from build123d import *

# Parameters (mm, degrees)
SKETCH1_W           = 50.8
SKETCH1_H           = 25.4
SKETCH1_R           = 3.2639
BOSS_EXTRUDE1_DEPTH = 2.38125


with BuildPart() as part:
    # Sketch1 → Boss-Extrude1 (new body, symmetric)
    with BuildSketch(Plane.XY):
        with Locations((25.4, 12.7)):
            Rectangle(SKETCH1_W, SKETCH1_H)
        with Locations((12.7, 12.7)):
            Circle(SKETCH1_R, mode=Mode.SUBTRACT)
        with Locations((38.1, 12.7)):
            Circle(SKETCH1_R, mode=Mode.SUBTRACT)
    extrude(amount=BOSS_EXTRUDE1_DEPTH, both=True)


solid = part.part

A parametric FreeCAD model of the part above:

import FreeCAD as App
import Part
import Sketcher
Q = App.Units.Quantity

doc = App.newDocument("Part")
body = doc.addObject("PartDesign::Body", "Body")

# Sketch on XY plane
sketch1 = body.newObject("Sketcher::SketchObject", "Sketch")
sketch1.AttachmentSupport = (doc.getObject("XY_Plane"), [""])
sketch1.MapMode = "FlatFace"
sketch1.addGeometry([
    Part.LineSegment(App.Vector(0, 25.4, 0), App.Vector(0, 0, 0)),  # 0
    Part.LineSegment(App.Vector(0, 0, 0), App.Vector(50.8, 0, 0)),  # 1
    Part.LineSegment(App.Vector(50.8, 0, 0), App.Vector(50.8, 25.4, 0)),  # 2
    Part.LineSegment(App.Vector(50.8, 25.4, 0), App.Vector(0, 25.4, 0)),  # 3
    Part.Circle(App.Vector(12.7, 12.7, 0), App.Vector(0, 0, 1), 3.3),  # 4
    Part.Circle(App.Vector(38.1, 12.7, 0), App.Vector(0, 0, 1), 3.3),  # 5
], False)
sketch1.addConstraint([
    Sketcher.Constraint("Coincident", 0, 2, 1, 1),
    Sketcher.Constraint("Coincident", 1, 2, 2, 1),
    Sketcher.Constraint("Coincident", 2, 2, 3, 1),
    Sketcher.Constraint("Coincident", 3, 2, 0, 1),
    Sketcher.Constraint("Vertical", 0),
    Sketcher.Constraint("Horizontal", 1),
    Sketcher.Constraint("Vertical", 2),
    Sketcher.Constraint("Horizontal", 3),
    Sketcher.Constraint("Coincident", 0, 2, -1, 1),
    Sketcher.Constraint("Equal", 4, 5),
    Sketcher.Constraint("Horizontal", 4, 3, 5, 3),
    Sketcher.Constraint("DistanceX", 1, 1, 1, 2, Q("2 in")),
    Sketcher.Constraint("DistanceY", 0, 2, 0, 1, Q("1 in")),
    Sketcher.Constraint("Diameter", 4, Q("0.257 in")),
    Sketcher.Constraint("DistanceX", 4, 3, 5, 3, Q("1 in")),
    Sketcher.Constraint("DistanceX", -1, 1, 4, 3, Q("0.5 in")),
    Sketcher.Constraint("DistanceY", -1, 1, 4, 3, Q("0.5 in")),
])
pad1 = body.newObject("PartDesign::Pad", "Pad")
pad1.Profile = sketch1
pad1.Length = Q("0.1875 in")
pad1.Midplane = True

doc.recompute()
